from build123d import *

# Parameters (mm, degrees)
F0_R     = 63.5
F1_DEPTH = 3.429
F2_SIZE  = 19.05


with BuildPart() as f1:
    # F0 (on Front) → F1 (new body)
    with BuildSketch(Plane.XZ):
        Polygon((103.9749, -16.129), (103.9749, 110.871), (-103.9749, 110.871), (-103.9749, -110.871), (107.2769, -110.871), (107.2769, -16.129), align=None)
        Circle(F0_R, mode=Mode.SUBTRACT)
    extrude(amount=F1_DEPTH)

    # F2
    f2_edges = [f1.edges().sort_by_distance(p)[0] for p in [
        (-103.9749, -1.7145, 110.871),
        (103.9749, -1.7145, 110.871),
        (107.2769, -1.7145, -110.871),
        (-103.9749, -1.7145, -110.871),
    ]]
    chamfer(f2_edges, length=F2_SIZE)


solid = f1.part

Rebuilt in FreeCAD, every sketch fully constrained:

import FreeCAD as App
import Part
import Sketcher
from FreeCAD import Vector
Q = App.Units.Quantity


def edges_at(feature, points):
    """Names of the edges that pass closest to the given points."""
    edges = feature.Shape.Edges
    near = lambda p: min(range(len(edges)), key=lambda i: edges[i].distToShape(Part.Vertex(*p))[0])
    return sorted({f"Edge{near(p) + 1}" for p in points})


def add_polygon(sketch, points):
    """Adds a closed chain of lines whose ends are joined by coincident constraints."""
    first, n = sketch.GeometryCount, len(points)
    for a, b in zip(points, points[1:] + points[:1]):
        sketch.addGeometry(Part.LineSegment(App.Vector(*a, 0), App.Vector(*b, 0)), False)
    for i in range(n):
        sketch.addConstraint(Sketcher.Constraint("Coincident", first + i, 2, first + (i + 1) % n, 1))

doc = App.newDocument("Part")
body = doc.addObject("PartDesign::Body", "Body")

sketch1 = body.newObject("Sketcher::SketchObject", "Sketch")
sketch1.AttachmentSupport = (doc.getObject("XZ_Plane"), [""])
sketch1.MapMode = "FlatFace"
add_polygon(sketch1, [(103.9749, -16.129), (103.9749, 110.871), (-103.9749, 110.871), (-103.9749, -110.871), (107.2769, -110.871), (107.2769, -16.129)])
sketch1.addGeometry(Part.Circle(Vector(0, 0, 0), Vector(0, 0, 1), 63.5), False)
sketch1.addConstraint([
    Sketcher.Constraint("Vertical", 0),
    Sketcher.Constraint("Horizontal", 1),
    Sketcher.Constraint("Vertical", 2),
    Sketcher.Constraint("Horizontal", 3),
    Sketcher.Constraint("Vertical", 4),
    Sketcher.Constraint("Horizontal", 5),
    Sketcher.Constraint("Coincident", 6, 3, -1, 1),
    Sketcher.Constraint("Symmetric", 0, 2, 2, 2, -1, 1),
    Sketcher.Constraint("Diameter", 6, Q("5 in")),
    Sketcher.Constraint("DistanceY", 0, 1, 0, 2, Q("5 in")),
    Sketcher.Constraint("DistanceX", 5, 2, 5, 1, Q("0.13 in")),
    Sketcher.Constraint("DistanceY", 2, 2, 2, 1, Q("8.73 in")),
    Sketcher.Constraint("DistanceX", 1, 2, 1, 1, Q("8.187 in")),
])
pad1 = body.newObject("PartDesign::Pad", "Pad")
pad1.Profile = sketch1
pad1.Length = Q("0.135 in")
doc.recompute()

chamfer = body.newObject("PartDesign::Chamfer", "Chamfer")
chamfer.Base = (pad1, edges_at(pad1, [
    (-103.975, -1.714, 110.871),
    (103.975, -1.714, 110.871),
    (107.277, -1.714, -110.871),
    (-103.975, -1.714, -110.871),
]))
chamfer.Size = Q("0.75 in")

doc.recompute()
